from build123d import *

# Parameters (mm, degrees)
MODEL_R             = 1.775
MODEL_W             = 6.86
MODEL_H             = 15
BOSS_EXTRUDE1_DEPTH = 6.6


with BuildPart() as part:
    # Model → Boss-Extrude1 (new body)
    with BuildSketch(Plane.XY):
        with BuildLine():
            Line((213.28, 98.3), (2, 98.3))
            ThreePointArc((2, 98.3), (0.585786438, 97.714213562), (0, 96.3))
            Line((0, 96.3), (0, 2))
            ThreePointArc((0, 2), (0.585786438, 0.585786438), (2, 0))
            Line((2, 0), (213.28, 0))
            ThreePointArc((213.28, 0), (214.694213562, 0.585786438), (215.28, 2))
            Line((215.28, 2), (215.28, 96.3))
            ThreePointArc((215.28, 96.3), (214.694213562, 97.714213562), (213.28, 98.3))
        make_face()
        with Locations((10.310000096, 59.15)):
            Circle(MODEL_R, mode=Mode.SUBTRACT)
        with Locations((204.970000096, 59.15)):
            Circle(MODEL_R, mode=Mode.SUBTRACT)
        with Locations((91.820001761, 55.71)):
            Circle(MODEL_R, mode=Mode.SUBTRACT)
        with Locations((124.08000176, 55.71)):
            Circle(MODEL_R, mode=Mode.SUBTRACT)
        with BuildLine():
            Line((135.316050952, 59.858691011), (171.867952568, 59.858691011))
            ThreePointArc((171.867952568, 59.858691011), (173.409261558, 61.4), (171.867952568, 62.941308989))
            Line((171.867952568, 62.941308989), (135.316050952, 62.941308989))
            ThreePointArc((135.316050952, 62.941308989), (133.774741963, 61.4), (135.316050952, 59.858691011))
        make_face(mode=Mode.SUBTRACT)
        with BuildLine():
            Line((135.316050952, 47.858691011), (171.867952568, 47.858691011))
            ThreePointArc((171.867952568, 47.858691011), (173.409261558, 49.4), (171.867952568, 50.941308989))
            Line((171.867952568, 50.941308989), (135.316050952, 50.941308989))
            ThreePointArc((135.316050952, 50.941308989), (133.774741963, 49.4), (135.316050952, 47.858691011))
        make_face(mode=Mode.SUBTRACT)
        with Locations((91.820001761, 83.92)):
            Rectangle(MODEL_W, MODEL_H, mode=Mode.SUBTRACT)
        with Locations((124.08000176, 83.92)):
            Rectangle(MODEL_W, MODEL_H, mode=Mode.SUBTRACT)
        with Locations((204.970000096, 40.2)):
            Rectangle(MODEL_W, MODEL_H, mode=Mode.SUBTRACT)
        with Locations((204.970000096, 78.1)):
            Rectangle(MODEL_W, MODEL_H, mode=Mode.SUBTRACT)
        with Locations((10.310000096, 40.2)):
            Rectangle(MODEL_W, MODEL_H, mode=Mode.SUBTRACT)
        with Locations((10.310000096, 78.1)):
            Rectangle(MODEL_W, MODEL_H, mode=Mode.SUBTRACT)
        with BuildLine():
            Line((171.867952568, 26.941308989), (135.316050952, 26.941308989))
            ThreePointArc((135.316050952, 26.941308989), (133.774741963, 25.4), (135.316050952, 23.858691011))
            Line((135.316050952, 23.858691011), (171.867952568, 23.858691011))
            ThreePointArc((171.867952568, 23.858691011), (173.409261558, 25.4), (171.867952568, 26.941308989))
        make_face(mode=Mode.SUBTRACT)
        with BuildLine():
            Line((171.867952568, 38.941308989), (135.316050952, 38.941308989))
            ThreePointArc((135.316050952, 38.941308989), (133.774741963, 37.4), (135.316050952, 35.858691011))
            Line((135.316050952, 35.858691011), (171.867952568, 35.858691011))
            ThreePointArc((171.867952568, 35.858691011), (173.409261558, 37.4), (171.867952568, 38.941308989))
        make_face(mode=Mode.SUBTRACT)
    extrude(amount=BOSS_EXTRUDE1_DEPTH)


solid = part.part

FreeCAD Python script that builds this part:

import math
import FreeCAD as App
import Part
import Sketcher

doc = App.newDocument("Part")
body = doc.addObject("PartDesign::Body", "Body")

# Sketch on XY plane
sketch1 = body.newObject("Sketcher::SketchObject", "Sketch")
sketch1.AttachmentSupport = (doc.getObject("XY_Plane"), [""])
sketch1.MapMode = "FlatFace"
sketch1.addGeometry(Part.LineSegment(App.Vector(213.3, 98.3, 0), App.Vector(2, 98.3, 0)), False)
sketch1.addGeometry(Part.ArcOfCircle(Part.Circle(App.Vector(2, 96.3, 0), App.Vector(0, 0, 1), 2), math.radians(90), math.radians(180)), False)
sketch1.addGeometry(Part.LineSegment(App.Vector(0, 96.3, 0), App.Vector(0, 2, 0)), False)
sketch1.addGeometry(Part.ArcOfCircle(Part.Circle(App.Vector(2, 2, 0), App.Vector(0, 0, 1), 2), math.radians(-180), math.radians(-90)), False)
sketch1.addGeometry(Part.LineSegment(App.Vector(2, 0, 0), App.Vector(213.3, 0, 0)), False)
sketch1.addGeometry(Part.ArcOfCircle(Part.Circle(App.Vector(213.3, 2, 0), App.Vector(0, 0, 1), 2), math.radians(-90), math.radians(0)), False)
sketch1.addGeometry(Part.LineSegment(App.Vector(215.3, 2, 0), App.Vector(215.3, 96.3, 0)), False)
sketch1.addGeometry(Part.ArcOfCircle(Part.Circle(App.Vector(213.3, 96.3, 0), App.Vector(0, 0, 1), 2), math.radians(0), math.radians(90)), False)
sketch1.addGeometry(Part.LineSegment(App.Vector(13.7, 32.7, 0), App.Vector(6.9, 32.7, 0)), False)
sketch1.addGeometry(Part.LineSegment(App.Vector(6.9, 32.7, 0), App.Vector(6.9, 47.7, 0)), False)
sketch1.addGeometry(Part.LineSegment(App.Vector(6.9, 47.7, 0), App.Vector(13.7, 47.7, 0)), False)
sketch1.addGeometry(Part.LineSegment(App.Vector(13.7, 47.7, 0), App.Vector(13.7, 32.7, 0)), False)
sketch1.addGeometry(Part.Circle(App.Vector(91.8, 55.7, 0), App.Vector(0, 0, 1), 1.8), False)
sketch1.addGeometry(Part.LineSegment(App.Vector(135.3, 26.9, 0), App.Vector(171.9, 26.9, 0)), False)
sketch1.addGeometry(Part.ArcOfCircle(Part.Circle(App.Vector(171.9, 25.4, 0), App.Vector(0, 0, 1), 1.5), math.radians(-90), math.radians(90)), False)
sketch1.addGeometry(Part.LineSegment(App.Vector(171.9, 23.9, 0), App.Vector(135.3, 23.9, 0)), False)
sketch1.addGeometry(Part.ArcOfCircle(Part.Circle(App.Vector(135.3, 25.4, 0), App.Vector(0, 0, 1), 1.5), math.radians(90), math.radians(270)), False)
sketch1.addGeometry(Part.LineSegment(App.Vector(135.3, 38.9, 0), App.Vector(171.9, 38.9, 0)), False)
sketch1.addGeometry(Part.ArcOfCircle(Part.Circle(App.Vector(171.9, 37.4, 0), App.Vector(0, 0, 1), 1.5), math.radians(-90), math.radians(90)), False)
sketch1.addGeometry(Part.LineSegment(App.Vector(171.9, 35.9, 0), App.Vector(135.3, 35.9, 0)), False)
sketch1.addGeometry(Part.ArcOfCircle(Part.Circle(App.Vector(135.3, 37.4, 0), App.Vector(0, 0, 1), 1.5), math.radians(90), math.radians(270)), False)
sketch1.addGeometry(Part.LineSegment(App.Vector(208.4, 32.7, 0), App.Vector(201.5, 32.7, 0)), False)
sketch1.addGeometry(Part.LineSegment(App.Vector(201.5, 32.7, 0), App.Vector(201.5, 47.7, 0)), False)
sketch1.addGeometry(Part.LineSegment(App.Vector(201.5, 47.7, 0), App.Vector(208.4, 47.7, 0)), False)
sketch1.addGeometry(Part.LineSegment(App.Vector(208.4, 47.7, 0), App.Vector(208.4, 32.7, 0)), False)
sketch1.addGeometry(Part.Circle(App.Vector(124.1, 55.7, 0), App.Vector(0, 0, 1), 1.8), False)
sketch1.addGeometry(Part.LineSegment(App.Vector(171.9, 47.9, 0), App.Vector(135.3, 47.9, 0)), False)
sketch1.addGeometry(Part.ArcOfCircle(Part.Circle(App.Vector(135.3, 49.4, 0), App.Vector(0, 0, 1), 1.5), math.radians(90), math.radians(270)), False)
sketch1.addGeometry(Part.LineSegment(App.Vector(135.3, 50.9, 0), App.Vector(171.9, 50.9, 0)), False)
sketch1.addGeometry(Part.ArcOfCircle(Part.Circle(App.Vector(171.9, 49.4, 0), App.Vector(0, 0, 1), 1.5), math.radians(-90), math.radians(90)), False)
sketch1.addGeometry(Part.Circle(App.Vector(10.3, 59.1, 0), App.Vector(0, 0, 1), 1.8), False)
sketch1.addGeometry(Part.LineSegment(App.Vector(13.7, 70.6, 0), App.Vector(6.9, 70.6, 0)), False)
sketch1.addGeometry(Part.LineSegment(App.Vector(6.9, 70.6, 0), App.Vector(6.9, 85.6, 0)), False)
sketch1.addGeometry(Part.LineSegment(App.Vector(6.9, 85.6, 0), App.Vector(13.7, 85.6, 0)), False)
sketch1.addGeometry(Part.LineSegment(App.Vector(13.7, 85.6, 0), App.Vector(13.7, 70.6, 0)), False)
sketch1.addGeometry(Part.LineSegment(App.Vector(95.3, 76.4, 0), App.Vector(88.4, 76.4, 0)), False)
sketch1.addGeometry(Part.LineSegment(App.Vector(88.4, 76.4, 0), App.Vector(88.4, 91.4, 0)), False)
sketch1.addGeometry(Part.LineSegment(App.Vector(88.4, 91.4, 0), App.Vector(95.3, 91.4, 0)), False)
sketch1.addGeometry(Part.LineSegment(App.Vector(95.3, 91.4, 0), App.Vector(95.3, 76.4, 0)), False)
sketch1.addGeometry(Part.LineSegment(App.Vector(171.9, 59.9, 0), App.Vector(135.3, 59.9, 0)), False)
sketch1.addGeometry(Part.ArcOfCircle(Part.Circle(App.Vector(135.3, 61.4, 0), App.Vector(0, 0, 1), 1.5), math.radians(90), math.radians(270)), False)
sketch1.addGeometry(Part.LineSegment(App.Vector(135.3, 62.9, 0), App.Vector(171.9, 62.9, 0)), False)
sketch1.addGeometry(Part.ArcOfCircle(Part.Circle(App.Vector(171.9, 61.4, 0), App.Vector(0, 0, 1), 1.5), math.radians(-90), math.radians(90)), False)
sketch1.addGeometry(Part.Circle(App.Vector(205, 59.1, 0), App.Vector(0, 0, 1), 1.8), False)
sketch1.addGeometry(Part.LineSegment(App.Vector(127.5, 76.4, 0), App.Vector(120.7, 76.4, 0)), False)
sketch1.addGeometry(Part.LineSegment(App.Vector(120.7, 76.4, 0), App.Vector(120.7, 91.4, 0)), False)
sketch1.addGeometry(Part.LineSegment(App.Vector(120.7, 91.4, 0), App.Vector(127.5, 91.4, 0)), False)
sketch1.addGeometry(Part.LineSegment(App.Vector(127.5, 91.4, 0), App.Vector(127.5, 76.4, 0)), False)
sketch1.addGeometry(Part.LineSegment(App.Vector(208.4, 70.6, 0), App.Vector(201.5, 70.6, 0)), False)
sketch1.addGeometry(Part.LineSegment(App.Vector(201.5, 70.6, 0), App.Vector(201.5, 85.6, 0)), False)
sketch1.addGeometry(Part.LineSegment(App.Vector(201.5, 85.6, 0), App.Vector(208.4, 85.6, 0)), False)
sketch1.addGeometry(Part.LineSegment(App.Vector(208.4, 85.6, 0), App.Vector(208.4, 70.6, 0)), False)
sketch1.addConstraint(Sketcher.Constraint("Tangent", 0, 2, 1, 1))
sketch1.addConstraint(Sketcher.Constraint("Tangent", 1, 2, 2, 1))
sketch1.addConstraint(Sketcher.Constraint("Tangent", 2, 2, 3, 1))
sketch1.addConstraint(Sketcher.Constraint("Tangent", 3, 2, 4, 1))
sketch1.addConstraint(Sketcher.Constraint("Tangent", 4, 2, 5, 1))
sketch1.addConstraint(Sketcher.Constraint("Tangent", 5, 2, 6, 1))
sketch1.addConstraint(Sketcher.Constraint("Tangent", 6, 2, 7, 1))
sketch1.addConstraint(Sketcher.Constraint("Tangent", 7, 2, 0, 1))
sketch1.addConstraint(Sketcher.Constraint("Coincident", 8, 2, 9, 1))
sketch1.addConstraint(Sketcher.Constraint("Coincident", 9, 2, 10, 1))
sketch1.addConstraint(Sketcher.Constraint("Coincident", 10, 2, 11, 1))
sketch1.addConstraint(Sketcher.Constraint("Coincident", 11, 2, 8, 1))
sketch1.addConstraint(Sketcher.Constraint("Tangent", 13, 2, 14, 2))
sketch1.addConstraint(Sketcher.Constraint("Tangent", 14, 1, 15, 1))
sketch1.addConstraint(Sketcher.Constraint("Tangent", 15, 2, 16, 2))
sketch1.addConstraint(Sketcher.Constraint("Tangent", 16, 1, 13, 1))
sketch1.addConstraint(Sketcher.Constraint("Tangent", 17, 2, 18, 2))
sketch1.addConstraint(Sketcher.Constraint("Tangent", 18, 1, 19, 1))
sketch1.addConstraint(Sketcher.Constraint("Tangent", 19, 2, 20, 2))
sketch1.addConstraint(Sketcher.Constraint("Tangent", 20, 1, 17, 1))
sketch1.addConstraint(Sketcher.Constraint("Coincident", 21, 2, 22, 1))
sketch1.addConstraint(Sketcher.Constraint("Coincident", 22, 2, 23, 1))
sketch1.addConstraint(Sketcher.Constraint("Coincident", 23, 2, 24, 1))
sketch1.addConstraint(Sketcher.Constraint("Coincident", 24, 2, 21, 1))
sketch1.addConstraint(Sketcher.Constraint("Tangent", 26, 2, 27, 2))
sketch1.addConstraint(Sketcher.Constraint("Tangent", 27, 1, 28, 1))
sketch1.addConstraint(Sketcher.Constraint("Tangent", 28, 2, 29, 2))
sketch1.addConstraint(Sketcher.Constraint("Tangent", 29, 1, 26, 1))
sketch1.addConstraint(Sketcher.Constraint("Coincident", 31, 2, 32, 1))
sketch1.addConstraint(Sketcher.Constraint("Coincident", 32, 2, 33, 1))
sketch1.addConstraint(Sketcher.Constraint("Coincident", 33, 2, 34, 1))
sketch1.addConstraint(Sketcher.Constraint("Coincident", 34, 2, 31, 1))
sketch1.addConstraint(Sketcher.Constraint("Coincident", 35, 2, 36, 1))
sketch1.addConstraint(Sketcher.Constraint("Coincident", 36, 2, 37, 1))
sketch1.addConstraint(Sketcher.Constraint("Coincident", 37, 2, 38, 1))
sketch1.addConstraint(Sketcher.Constraint("Coincident", 38, 2, 35, 1))
sketch1.addConstraint(Sketcher.Constraint("Tangent", 39, 2, 40, 2))
sketch1.addConstraint(Sketcher.Constraint("Tangent", 40, 1, 41, 1))
sketch1.addConstraint(Sketcher.Constraint("Tangent", 41, 2, 42, 2))
sketch1.addConstraint(Sketcher.Constraint("Tangent", 42, 1, 39, 1))
sketch1.addConstraint(Sketcher.Constraint("Coincident", 44, 2, 45, 1))
sketch1.addConstraint(Sketcher.Constraint("Coincident", 45, 2, 46, 1))
sketch1.addConstraint(Sketcher.Constraint("Coincident", 46, 2, 47, 1))
sketch1.addConstraint(Sketcher.Constraint("Coincident", 47, 2, 44, 1))
sketch1.addConstraint(Sketcher.Constraint("Coincident", 48, 2, 49, 1))
sketch1.addConstraint(Sketcher.Constraint("Coincident", 49, 2, 50, 1))
sketch1.addConstraint(Sketcher.Constraint("Coincident", 50, 2, 51, 1))
sketch1.addConstraint(Sketcher.Constraint("Coincident", 51, 2, 48, 1))
sketch1.addConstraint(Sketcher.Constraint("Horizontal", 0))
sketch1.addConstraint(Sketcher.Constraint("Vertical", 2))
sketch1.addConstraint(Sketcher.Constraint("Horizontal", 4))
sketch1.addConstraint(Sketcher.Constraint("Vertical", 6))
sketch1.addConstraint(Sketcher.Constraint("Horizontal", 8))
sketch1.addConstraint(Sketcher.Constraint("Vertical", 9))
sketch1.addConstraint(Sketcher.Constraint("Horizontal", 10))
sketch1.addConstraint(Sketcher.Constraint("Vertical", 11))
sketch1.addConstraint(Sketcher.Constraint("Horizontal", 13))
sketch1.addConstraint(Sketcher.Constraint("Horizontal", 15))
sketch1.addConstraint(Sketcher.Constraint("Horizontal", 17))
sketch1.addConstraint(Sketcher.Constraint("Horizontal", 19))
sketch1.addConstraint(Sketcher.Constraint("Horizontal", 21))
sketch1.addConstraint(Sketcher.Constraint("Vertical", 22))
sketch1.addConstraint(Sketcher.Constraint("Horizontal", 23))
sketch1.addConstraint(Sketcher.Constraint("Vertical", 24))
sketch1.addConstraint(Sketcher.Constraint("Horizontal", 26))
sketch1.addConstraint(Sketcher.Constraint("Horizontal", 28))
sketch1.addConstraint(Sketcher.Constraint("Horizontal", 31))
sketch1.addConstraint(Sketcher.Constraint("Vertical", 32))
sketch1.addConstraint(Sketcher.Constraint("Horizontal", 33))
sketch1.addConstraint(Sketcher.Constraint("Vertical", 34))
sketch1.addConstraint(Sketcher.Constraint("Horizontal", 35))
sketch1.addConstraint(Sketcher.Constraint("Vertical", 36))
sketch1.addConstraint(Sketcher.Constraint("Horizontal", 37))
sketch1.addConstraint(Sketcher.Constraint("Vertical", 38))
sketch1.addConstraint(Sketcher.Constraint("Horizontal", 39))
sketch1.addConstraint(Sketcher.Constraint("Horizontal", 41))
sketch1.addConstraint(Sketcher.Constraint("Horizontal", 44))
sketch1.addConstraint(Sketcher.Constraint("Vertical", 45))
sketch1.addConstraint(Sketcher.Constraint("Horizontal", 46))
sketch1.addConstraint(Sketcher.Constraint("Vertical", 47))
sketch1.addConstraint(Sketcher.Constraint("Horizontal", 48))
sketch1.addConstraint(Sketcher.Constraint("Vertical", 49))
sketch1.addConstraint(Sketcher.Constraint("Horizontal", 50))
sketch1.addConstraint(Sketcher.Constraint("Vertical", 51))
sketch1.addConstraint(Sketcher.Constraint("Equal", 1, 3))
sketch1.addConstraint(Sketcher.Constraint("Equal", 3, 5))
sketch1.addConstraint(Sketcher.Constraint("Equal", 5, 7))
sketch1.addConstraint(Sketcher.Constraint("Equal", 16, 18))
sketch1.addConstraint(Sketcher.Constraint("Equal", 12, 25))
sketch1.addConstraint(Sketcher.Constraint("Equal", 20, 27))
sketch1.addConstraint(Sketcher.Constraint("Equal", 25, 30))
sketch1.addConstraint(Sketcher.Constraint("Equal", 29, 40))
sketch1.addConstraint(Sketcher.Constraint("Equal", 30, 43))
sketch1.addConstraint(Sketcher.Constraint("PointOnObject", 1, 2, -2))
sketch1.addConstraint(Sketcher.Constraint("PointOnObject", 3, 2, -1))
sketch1.addConstraint(Sketcher.Constraint("Horizontal", 12, 3, 25, 3))
sketch1.addConstraint(Sketcher.Constraint("Horizontal", 30, 3, 43, 3))
sketch1.addConstraint(Sketcher.Constraint("Horizontal", 11, 2, 21, 2))
sketch1.addConstraint(Sketcher.Constraint("Horizontal", 10, 2, 22, 2))
sketch1.addConstraint(Sketcher.Constraint("Horizontal", 38, 2, 44, 2))
sketch1.addConstraint(Sketcher.Constraint("Horizontal", 37, 2, 45, 2))
sketch1.addConstraint(Sketcher.Constraint("Horizontal", 34, 2, 48, 2))
sketch1.addConstraint(Sketcher.Constraint("Horizontal", 33, 2, 49, 2))
sketch1.addConstraint(Sketcher.Constraint("Vertical", 14, 3, 18, 3))
sketch1.addConstraint(Sketcher.Constraint("Vertical", 16, 3, 20, 3))
sketch1.addConstraint(Sketcher.Constraint("Vertical", 20, 3, 27, 3))
sketch1.addConstraint(Sketcher.Constraint("Vertical", 18, 3, 29, 3))
sketch1.addConstraint(Sketcher.Constraint("Vertical", 27, 3, 40, 3))
sketch1.addConstraint(Sketcher.Constraint("Vertical", 29, 3, 42, 3))
sketch1.addConstraint(Sketcher.Constraint("Vertical", 9, 2, 31, 2))
sketch1.addConstraint(Sketcher.Constraint("Vertical", 11, 2, 33, 2))
sketch1.addConstraint(Sketcher.Constraint("Vertical", 22, 2, 48, 2))
sketch1.addConstraint(Sketcher.Constraint("Vertical", 24, 2, 50, 2))
sketch1.addConstraint(Sketcher.Constraint("Equal", 10, 21))
sketch1.addConstraint(Sketcher.Constraint("Equal", 33, 35))
sketch1.addConstraint(Sketcher.Constraint("Equal", 37, 44))
sketch1.addConstraint(Sketcher.Constraint("Equal", 24, 32))
sketch1.addConstraint(Sketcher.Constraint("Equal", 34, 36))
sketch1.addConstraint(Sketcher.Constraint("Radius", 1, 2.0))
sketch1.addConstraint(Sketcher.Constraint("Diameter", 12, 3.55))
sketch1.addConstraint(Sketcher.Constraint("DistanceY", 9, 1, 9, 2, 15.0))
sketch1.addConstraint(Sketcher.Constraint("DistanceY", 2, 2, 2, 1, 94.3))
sketch1.addConstraint(Sketcher.Constraint("DistanceX", 0, 2, 0, 1, 211.28))
sketch1.addConstraint(Sketcher.Constraint("DistanceX", 8, 2, 8, 1, 6.86))
sketch1.addConstraint(Sketcher.Constraint("DistanceY", -1, 1, 14, 3, 25.4))
sketch1.addConstraint(Sketcher.Constraint("DistanceY", -1, 1, 18, 3, 37.4))
sketch1.addConstraint(Sketcher.Constraint("DistanceY", -1, 1, 27, 3, 49.4))
sketch1.addConstraint(Sketcher.Constraint("DistanceY", -1, 1, 40, 3, 61.4))
sketch1.addConstraint(Sketcher.Constraint("DistanceY", -1, 1, 8, 2, 32.7))
sketch1.addConstraint(Sketcher.Constraint("DistanceX", -1, 1, 23, 2, 208.4))
sketch1.addConstraint(Sketcher.Constraint("DistanceY", -1, 1, 31, 2, 70.6))
sketch1.addConstraint(Sketcher.Constraint("DistanceX", -1, 1, 12, 3, 91.820002))
sketch1.addConstraint(Sketcher.Constraint("DistanceY", -1, 1, 12, 3, 55.71))
sketch1.addConstraint(Sketcher.Constraint("DistanceX", -1, 1, 25, 3, 124.080002))
sketch1.addConstraint(Sketcher.Constraint("DistanceX", -1, 1, 30, 3, 10.31))
sketch1.addConstraint(Sketcher.Constraint("DistanceY", -1, 1, 30, 3, 59.15))
sketch1.addConstraint(Sketcher.Constraint("DistanceX", -1, 1, 43, 3, 204.97))
sketch1.addConstraint(Sketcher.Constraint("DistanceX", -1, 1, 8, 2, 6.88))
sketch1.addConstraint(Sketcher.Constraint("DistanceX", -1, 1, 35, 2, 88.390002))
sketch1.addConstraint(Sketcher.Constraint("DistanceY", -1, 1, 35, 2, 76.42))
sketch1.addConstraint(Sketcher.Constraint("DistanceX", -1, 1, 44, 2, 120.650002))
sketch1.addConstraint(Sketcher.Constraint("Radius", 14, 1.541309))
sketch1.addConstraint(Sketcher.Constraint("DistanceX", 13, 1, 13, 2, 36.551902))
sketch1.addConstraint(Sketcher.Constraint("DistanceX", -1, 1, 16, 3, 135.316051))
pad1 = body.newObject("PartDesign::Pad", "Pad")
pad1.Profile = sketch1
pad1.Length = 6.6

doc.recompute()
